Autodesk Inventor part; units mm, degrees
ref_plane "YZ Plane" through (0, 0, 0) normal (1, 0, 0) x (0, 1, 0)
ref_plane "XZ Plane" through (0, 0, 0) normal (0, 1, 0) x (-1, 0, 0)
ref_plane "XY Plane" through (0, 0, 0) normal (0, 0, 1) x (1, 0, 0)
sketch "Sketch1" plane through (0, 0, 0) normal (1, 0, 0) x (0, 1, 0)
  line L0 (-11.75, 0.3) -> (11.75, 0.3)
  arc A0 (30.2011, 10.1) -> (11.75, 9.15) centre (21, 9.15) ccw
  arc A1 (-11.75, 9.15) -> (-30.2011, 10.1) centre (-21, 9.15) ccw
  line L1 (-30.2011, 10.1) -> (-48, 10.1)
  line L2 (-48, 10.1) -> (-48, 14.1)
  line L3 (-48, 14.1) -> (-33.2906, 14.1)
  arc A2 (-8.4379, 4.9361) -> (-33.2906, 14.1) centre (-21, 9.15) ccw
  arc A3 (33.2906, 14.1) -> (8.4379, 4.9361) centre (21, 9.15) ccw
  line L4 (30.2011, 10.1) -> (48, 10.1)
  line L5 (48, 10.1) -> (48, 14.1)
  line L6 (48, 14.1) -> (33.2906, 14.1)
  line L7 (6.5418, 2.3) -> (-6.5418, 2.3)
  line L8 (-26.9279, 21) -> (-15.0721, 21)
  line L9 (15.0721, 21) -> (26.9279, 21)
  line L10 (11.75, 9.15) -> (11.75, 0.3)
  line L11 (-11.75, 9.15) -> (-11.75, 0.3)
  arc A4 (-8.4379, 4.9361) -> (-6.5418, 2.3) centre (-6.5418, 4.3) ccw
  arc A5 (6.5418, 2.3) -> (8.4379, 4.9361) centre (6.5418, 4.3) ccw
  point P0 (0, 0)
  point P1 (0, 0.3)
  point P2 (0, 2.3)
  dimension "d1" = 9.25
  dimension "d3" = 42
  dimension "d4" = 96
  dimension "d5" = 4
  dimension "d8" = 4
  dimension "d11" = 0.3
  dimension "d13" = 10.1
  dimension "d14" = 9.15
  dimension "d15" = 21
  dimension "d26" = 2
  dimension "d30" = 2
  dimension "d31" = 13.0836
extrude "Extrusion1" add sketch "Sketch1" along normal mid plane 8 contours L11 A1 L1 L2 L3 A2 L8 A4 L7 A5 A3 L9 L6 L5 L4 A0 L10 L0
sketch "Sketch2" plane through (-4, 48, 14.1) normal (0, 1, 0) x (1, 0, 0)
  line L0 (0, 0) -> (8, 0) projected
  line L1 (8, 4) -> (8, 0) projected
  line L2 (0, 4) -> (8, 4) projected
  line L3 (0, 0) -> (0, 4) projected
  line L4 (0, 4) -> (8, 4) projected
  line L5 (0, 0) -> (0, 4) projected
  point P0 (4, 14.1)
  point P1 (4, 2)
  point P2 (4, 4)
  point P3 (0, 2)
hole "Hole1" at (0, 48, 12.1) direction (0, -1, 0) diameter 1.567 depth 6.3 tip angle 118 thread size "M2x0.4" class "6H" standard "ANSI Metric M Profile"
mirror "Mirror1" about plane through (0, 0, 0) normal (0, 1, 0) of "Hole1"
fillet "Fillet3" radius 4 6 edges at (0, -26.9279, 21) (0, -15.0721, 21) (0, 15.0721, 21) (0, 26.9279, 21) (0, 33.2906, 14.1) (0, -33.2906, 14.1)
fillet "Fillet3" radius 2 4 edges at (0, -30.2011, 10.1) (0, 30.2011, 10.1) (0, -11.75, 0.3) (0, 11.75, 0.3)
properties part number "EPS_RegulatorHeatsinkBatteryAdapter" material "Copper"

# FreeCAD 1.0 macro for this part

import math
import FreeCAD as App
import Part
import Sketcher

V = App.Vector
Q = App.Units.Quantity


def edges_at(feature, points):
    """Names of the edges that pass closest to the given points."""
    edges = feature.Shape.Edges
    near = lambda p: min(range(len(edges)), key=lambda i: edges[i].distToShape(Part.Vertex(*p))[0])
    return sorted({f"Edge{near(p) + 1}" for p in points})

doc = App.newDocument("Part")
body = doc.addObject("PartDesign::Body", "Body")

# Sketch on YZ plane
sketch1 = body.newObject("Sketcher::SketchObject", "Sketch")
sketch1.AttachmentSupport = (doc.getObject("YZ_Plane"), [""])
sketch1.MapMode = "FlatFace"
sketch1.addGeometry(Part.LineSegment(V(-11.8, 9.2, 0), V(-11.8, 0.3, 0)), False)
sketch1.addGeometry(Part.LineSegment(V(-11.8, 0.3, 0), V(11.8, 0.3, 0)), False)
sketch1.addGeometry(Part.LineSegment(V(11.8, 0.3, 0), V(11.8, 9.2, 0)), False)
sketch1.addGeometry(Part.ArcOfCircle(Part.Circle(V(21, 9.2, 0), V(0, 0, 1), 9.3), math.radians(6), math.radians(180)), False)
sketch1.addGeometry(Part.LineSegment(V(30.2, 10.1, 0), V(48, 10.1, 0)), False)
sketch1.addGeometry(Part.LineSegment(V(48, 10.1, 0), V(48, 14.1, 0)), False)
sketch1.addGeometry(Part.LineSegment(V(48, 14.1, 0), V(33.3, 14.1, 0)), False)
sketch1.addGeometry(Part.ArcOfCircle(Part.Circle(V(21, 9.2, 0), V(0, 0, 1), 13.2), math.radians(22), math.radians(63)), False)
sketch1.addGeometry(Part.LineSegment(V(26.9, 21, 0), V(15.1, 21, 0)), False)
sketch1.addGeometry(Part.ArcOfCircle(Part.Circle(V(21, 9.2, 0), V(0, 0, 1), 13.2), math.radians(117), math.radians(199)), False)
sketch1.addGeometry(Part.ArcOfCircle(Part.Circle(V(6.5, 4.3, 0), V(0, 0, 1), 2), math.radians(-90), math.radians(19)), False)
sketch1.addGeometry(Part.LineSegment(V(6.5, 2.3, 0), V(-6.5, 2.3, 0)), False)
sketch1.addGeometry(Part.ArcOfCircle(Part.Circle(V(-6.5, 4.3, 0), V(0, 0, 1), 2), math.radians(161), math.radians(270)), False)
sketch1.addGeometry(Part.ArcOfCircle(Part.Circle(V(-21, 9.2, 0), V(0, 0, 1), 13.3), math.radians(-19), math.radians(63)), False)
sketch1.addGeometry(Part.LineSegment(V(-15.1, 21, 0), V(-26.9, 21, 0)), False)
sketch1.addGeometry(Part.ArcOfCircle(Part.Circle(V(-21, 9.2, 0), V(0, 0, 1), 13.3), math.radians(117), math.radians(158)), False)
sketch1.addGeometry(Part.LineSegment(V(-33.3, 14.1, 0), V(-48, 14.1, 0)), False)
sketch1.addGeometry(Part.LineSegment(V(-48, 14.1, 0), V(-48, 10.1, 0)), False)
sketch1.addGeometry(Part.LineSegment(V(-48, 10.1, 0), V(-30.2, 10.1, 0)), False)
sketch1.addGeometry(Part.ArcOfCircle(Part.Circle(V(-21, 9.2, 0), V(0, 0, 1), 9.2), math.radians(0), math.radians(174)), False)
sketch1.addConstraint(Sketcher.Constraint("Coincident", 0, 2, 1, 1))
sketch1.addConstraint(Sketcher.Constraint("Coincident", 1, 2, 2, 1))
sketch1.addConstraint(Sketcher.Constraint("Tangent", 2, 2, 3, 2))
sketch1.addConstraint(Sketcher.Constraint("Coincident", 3, 1, 4, 1))
sketch1.addConstraint(Sketcher.Constraint("Coincident", 4, 2, 5, 1))
sketch1.addConstraint(Sketcher.Constraint("Coincident", 5, 2, 6, 1))
sketch1.addConstraint(Sketcher.Constraint("Coincident", 6, 2, 7, 1))
sketch1.addConstraint(Sketcher.Constraint("Coincident", 7, 2, 8, 1))
sketch1.addConstraint(Sketcher.Constraint("Coincident", 8, 2, 9, 1))
sketch1.addConstraint(Sketcher.Constraint("Tangent", 9, 2, 10, 2))
sketch1.addConstraint(Sketcher.Constraint("Tangent", 10, 1, 11, 1))
sketch1.addConstraint(Sketcher.Constraint("Tangent", 11, 2, 12, 2))
sketch1.addConstraint(Sketcher.Constraint("Tangent", 12, 1, 13, 1))
sketch1.addConstraint(Sketcher.Constraint("Coincident", 13, 2, 14, 1))
sketch1.addConstraint(Sketcher.Constraint("Coincident", 14, 2, 15, 1))
sketch1.addConstraint(Sketcher.Constraint("Coincident", 15, 2, 16, 1))
sketch1.addConstraint(Sketcher.Constraint("Coincident", 16, 2, 17, 1))
sketch1.addConstraint(Sketcher.Constraint("Coincident", 17, 2, 18, 1))
sketch1.addConstraint(Sketcher.Constraint("Coincident", 18, 2, 19, 2))
sketch1.addConstraint(Sketcher.Constraint("Tangent", 19, 1, 0, 1))
sketch1.addConstraint(Sketcher.Constraint("Vertical", 0))
sketch1.addConstraint(Sketcher.Constraint("Horizontal", 1))
sketch1.addConstraint(Sketcher.Constraint("Vertical", 2))
sketch1.addConstraint(Sketcher.Constraint("Horizontal", 4))
sketch1.addConstraint(Sketcher.Constraint("Vertical", 5))
sketch1.addConstraint(Sketcher.Constraint("Horizontal", 6))
sketch1.addConstraint(Sketcher.Constraint("Horizontal", 8))
sketch1.addConstraint(Sketcher.Constraint("Horizontal", 11))
sketch1.addConstraint(Sketcher.Constraint("Horizontal", 14))
sketch1.addConstraint(Sketcher.Constraint("Horizontal", 16))
sketch1.addConstraint(Sketcher.Constraint("Vertical", 17))
sketch1.addConstraint(Sketcher.Constraint("Horizontal", 18))
sketch1.addConstraint(Sketcher.Constraint("Coincident", 7, 3, 3, 3))
sketch1.addConstraint(Sketcher.Constraint("Coincident", 9, 3, 3, 3))
sketch1.addConstraint(Sketcher.Constraint("Coincident", 15, 3, 13, 3))
sketch1.addConstraint(Sketcher.Constraint("Coincident", 19, 3, 13, 3))
sketch1.addConstraint(Sketcher.Constraint("Equal", 7, 9))
sketch1.addConstraint(Sketcher.Constraint("Equal", 10, 12))
sketch1.addConstraint(Sketcher.Constraint("Equal", 9, 13))
sketch1.addConstraint(Sketcher.Constraint("Equal", 13, 15))
sketch1.addConstraint(Sketcher.Constraint("Equal", 3, 19))
sketch1.addConstraint(Sketcher.Constraint("Symmetric", 3, 3, 13, 3, -2))
sketch1.addConstraint(Sketcher.Constraint("Symmetric", 5, 2, 16, 2, -2))
sketch1.addConstraint(Sketcher.Constraint("Horizontal", 8, 2, 13, 2))
sketch1.addConstraint(Sketcher.Constraint("Horizontal", 4, 2, 17, 2))
sketch1.addConstraint(Sketcher.Constraint("Radius", 10, Q("2 mm")))
sketch1.addConstraint(Sketcher.Constraint("DistanceY", 5, 1, 5, 2, Q("4 mm")))
sketch1.addConstraint(Sketcher.Constraint("Radius", 3, Q("9.25 mm")))
sketch1.addConstraint(Sketcher.Constraint("DistanceX", -1, 1, 3, 3, Q("21 mm")))
sketch1.addConstraint(Sketcher.Constraint("DistanceY", -1, 1, 7, 2, Q("21 mm")))
sketch1.addConstraint(Sketcher.Constraint("DistanceY", 0, 2, 12, 3, Q("4 mm")))
sketch1.addConstraint(Sketcher.Constraint("DistanceY", -1, 1, 0, 2, Q("0.3 mm")))
sketch1.addConstraint(Sketcher.Constraint("DistanceY", -1, 1, 3, 1, Q("10.1 mm")))
sketch1.addConstraint(Sketcher.Constraint("DistanceY", -1, 1, 3, 3, Q("9.15 mm")))
sketch1.addConstraint(Sketcher.Constraint("Radius", 7, Q("13.25 mm")))
sketch1.addConstraint(Sketcher.Constraint("DistanceX", -1, 1, 4, 2, Q("48 mm")))
pad1 = body.newObject("PartDesign::Pad", "Pad")
pad1.Profile = sketch1
pad1.Length = 8
pad1.Midplane = True

# Sketch on XZ plane
sketch2 = body.newObject("Sketcher::SketchObject", "Sketch001")
sketch2.AttachmentSupport = (doc.getObject("XZ_Plane"), [""])
sketch2.MapMode = "FlatFace"
sketch2.AttachmentOffset = App.Placement(V(0, 0, -48), App.Rotation())
sketch2.addGeometry(Part.Circle(V(0, 12.1, 0), V(0, 0, 1), 0.8), False)
sketch2.addConstraint(Sketcher.Constraint("PointOnObject", 0, 3, -2))
sketch2.addConstraint(Sketcher.Constraint("Diameter", 0, Q("1.567 mm")))
sketch2.addConstraint(Sketcher.Constraint("DistanceY", -1, 1, 0, 3, Q("12.1 mm")))
doc.recompute()
hole = body.newObject("PartDesign::Hole", "Hole")
hole.Profile = sketch2
hole.ThreadType = "None"
hole.Diameter = 1.567
hole.DepthType = "Dimension"
hole.Depth = 6.3
hole.DrillPoint = "Angled"
hole.DrillPointAngle = 118
hole.Reversed = True
doc.recompute()

mirrored = body.newObject("PartDesign::Mirrored", "Mirrored")
mirrored.Originals = [hole]
mirrored.MirrorPlane = (doc.getObject("XZ_Plane"), [""])
body.Tip = mirrored
doc.recompute()

fillet = body.newObject("PartDesign::Fillet", "Fillet")
fillet.Base = (mirrored, edges_at(mirrored, [
    (0, -26.928, 21),
    (0, -15.072, 21),
    (0, 15.072, 21),
    (0, 26.928, 21),
    (0, 33.291, 14.1),
    (0, -33.291, 14.1),
]))
fillet.Radius = 4
doc.recompute()

fillet2 = body.newObject("PartDesign::Fillet", "Fillet001")
fillet2.Base = (fillet, edges_at(fillet, [
    (0, -30.201, 10.1),
    (0, 30.201, 10.1),
    (0, -11.75, 0.3),
    (0, 11.75, 0.3),
]))
fillet2.Radius = 2

doc.recompute()
